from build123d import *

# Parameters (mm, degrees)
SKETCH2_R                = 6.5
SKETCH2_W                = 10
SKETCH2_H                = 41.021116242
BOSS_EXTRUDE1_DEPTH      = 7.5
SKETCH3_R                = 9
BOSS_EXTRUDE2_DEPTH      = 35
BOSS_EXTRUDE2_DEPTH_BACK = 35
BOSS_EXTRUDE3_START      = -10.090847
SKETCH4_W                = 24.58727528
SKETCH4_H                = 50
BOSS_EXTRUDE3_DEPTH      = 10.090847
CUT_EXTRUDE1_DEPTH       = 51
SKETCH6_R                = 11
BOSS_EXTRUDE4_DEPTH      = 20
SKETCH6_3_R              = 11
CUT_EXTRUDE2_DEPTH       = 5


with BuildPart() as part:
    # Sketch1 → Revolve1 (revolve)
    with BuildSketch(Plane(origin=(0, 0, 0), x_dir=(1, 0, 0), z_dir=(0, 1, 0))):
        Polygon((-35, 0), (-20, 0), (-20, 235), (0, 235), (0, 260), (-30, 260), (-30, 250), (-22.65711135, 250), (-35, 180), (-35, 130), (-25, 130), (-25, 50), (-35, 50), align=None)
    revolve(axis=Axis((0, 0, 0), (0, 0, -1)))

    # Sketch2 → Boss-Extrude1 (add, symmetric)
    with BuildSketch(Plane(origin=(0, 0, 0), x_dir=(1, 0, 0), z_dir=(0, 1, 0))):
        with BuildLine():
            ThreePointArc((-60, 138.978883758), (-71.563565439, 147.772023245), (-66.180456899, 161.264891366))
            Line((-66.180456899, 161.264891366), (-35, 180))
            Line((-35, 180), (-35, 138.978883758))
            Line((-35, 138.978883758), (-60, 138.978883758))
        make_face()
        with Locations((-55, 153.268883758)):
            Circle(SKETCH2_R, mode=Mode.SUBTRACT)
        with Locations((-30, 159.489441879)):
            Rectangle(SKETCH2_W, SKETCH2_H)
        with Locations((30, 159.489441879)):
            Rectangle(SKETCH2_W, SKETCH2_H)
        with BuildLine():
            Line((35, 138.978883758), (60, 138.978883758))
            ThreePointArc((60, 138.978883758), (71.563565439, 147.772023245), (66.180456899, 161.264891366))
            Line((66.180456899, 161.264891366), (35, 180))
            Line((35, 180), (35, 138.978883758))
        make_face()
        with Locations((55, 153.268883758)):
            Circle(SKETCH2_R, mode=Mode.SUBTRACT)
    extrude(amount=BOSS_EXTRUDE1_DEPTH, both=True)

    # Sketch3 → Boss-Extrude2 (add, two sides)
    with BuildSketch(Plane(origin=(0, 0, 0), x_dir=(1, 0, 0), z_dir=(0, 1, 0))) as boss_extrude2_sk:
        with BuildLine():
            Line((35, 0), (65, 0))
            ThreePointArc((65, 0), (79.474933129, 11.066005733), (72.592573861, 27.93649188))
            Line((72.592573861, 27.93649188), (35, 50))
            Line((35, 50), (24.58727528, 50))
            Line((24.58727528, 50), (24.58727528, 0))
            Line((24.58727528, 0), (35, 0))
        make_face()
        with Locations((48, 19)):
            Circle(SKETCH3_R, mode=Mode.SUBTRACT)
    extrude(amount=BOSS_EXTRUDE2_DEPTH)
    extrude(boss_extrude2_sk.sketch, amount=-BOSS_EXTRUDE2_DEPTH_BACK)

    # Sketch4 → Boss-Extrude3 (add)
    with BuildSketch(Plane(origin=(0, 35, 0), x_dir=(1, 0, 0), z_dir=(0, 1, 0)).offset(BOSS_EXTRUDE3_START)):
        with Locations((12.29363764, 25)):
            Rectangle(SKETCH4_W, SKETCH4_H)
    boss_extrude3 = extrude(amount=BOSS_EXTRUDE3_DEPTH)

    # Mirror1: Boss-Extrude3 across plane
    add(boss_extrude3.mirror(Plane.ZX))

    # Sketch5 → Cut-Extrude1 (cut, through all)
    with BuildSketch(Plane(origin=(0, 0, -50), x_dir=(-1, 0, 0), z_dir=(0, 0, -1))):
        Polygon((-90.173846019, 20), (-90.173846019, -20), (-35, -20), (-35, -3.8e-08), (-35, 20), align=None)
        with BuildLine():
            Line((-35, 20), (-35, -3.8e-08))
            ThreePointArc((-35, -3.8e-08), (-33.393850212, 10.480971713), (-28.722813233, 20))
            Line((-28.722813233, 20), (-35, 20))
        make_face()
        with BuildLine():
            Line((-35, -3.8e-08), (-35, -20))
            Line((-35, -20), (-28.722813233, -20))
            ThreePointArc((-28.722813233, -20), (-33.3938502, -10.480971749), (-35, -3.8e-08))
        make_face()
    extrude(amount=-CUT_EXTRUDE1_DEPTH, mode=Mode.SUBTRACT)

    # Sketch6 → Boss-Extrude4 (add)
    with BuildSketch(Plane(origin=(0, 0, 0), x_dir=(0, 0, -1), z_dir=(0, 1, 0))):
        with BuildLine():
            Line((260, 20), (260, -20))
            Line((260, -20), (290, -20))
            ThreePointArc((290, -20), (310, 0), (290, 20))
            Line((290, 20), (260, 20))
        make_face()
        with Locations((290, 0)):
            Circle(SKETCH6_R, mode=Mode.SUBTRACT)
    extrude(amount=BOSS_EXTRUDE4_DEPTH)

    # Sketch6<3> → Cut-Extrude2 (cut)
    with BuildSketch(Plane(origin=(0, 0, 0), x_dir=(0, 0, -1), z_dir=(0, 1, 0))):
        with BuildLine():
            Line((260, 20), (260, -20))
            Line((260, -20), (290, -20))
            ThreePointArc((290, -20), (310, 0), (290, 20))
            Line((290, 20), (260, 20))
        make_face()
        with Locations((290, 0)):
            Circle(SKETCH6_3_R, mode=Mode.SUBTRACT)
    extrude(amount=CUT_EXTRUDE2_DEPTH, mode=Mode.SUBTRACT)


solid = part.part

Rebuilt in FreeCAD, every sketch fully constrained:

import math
import FreeCAD as App
import Part
import Sketcher
from FreeCAD import Vector
Q = App.Units.Quantity

doc = App.newDocument("Part")
params = doc.addObject("Spreadsheet::Sheet", "Params")
for row, (alias, value) in enumerate([
    ("sketch1_width", "15 mm"),
    ("sketch1_width2", "20 mm"),
    ("sketch1_width3", "30 mm"),
    ("sketch1_width4", "10 mm"),
    ("sketch1_height", "235 mm"),
    ("revolution_angle", "360 deg"),
    ("sketch2_diameter", "13 mm"),
    ("sketch2_radius", "12 mm"),
    ("sketch2_width", "35 mm"),
    ("sketch2_width2", "10 mm"),
    ("pad1_length", "15 mm"),
    ("sketch3_diameter", "18 mm"),
    ("sketch3_radius", "15 mm"),
    ("sketch3_height", "50 mm"),
    ("pad2_length", "35 mm"),
    ("pad2_length2", "35 mm"),
    ("sketch4_height", "50 mm"),
    ("pad3_length", "10.090847 mm"),
    ("sketch5_radius", "35 mm"),
    ("sketch5_height", "40 mm"),
    ("sketch6_diameter", "22 mm"),
    ("sketch6_radius", "20 mm"),
    ("sketch6_height", "30 mm"),
    ("pad4_length", "20 mm"),
    ("sketch7_diameter", "22 mm"),
    ("sketch7_radius", "20 mm"),
    ("sketch7_height", "30 mm"),
    ("pocket2_length", "5 mm"),
], start=1):
    params.set(f"A{row}", alias)
    params.set(f"B{row}", "=" + value)
    params.setAlias(f"B{row}", alias)

body = doc.addObject("PartDesign::Body", "Body")

# Sketch on XZ plane
sketch1 = body.newObject("Sketcher::SketchObject", "Sketch")
sketch1.AttachmentSupport = (doc.getObject("XZ_Plane"), [""])
sketch1.MapMode = "FlatFace"
sketch1.addGeometry([
    Part.LineSegment(Vector(-35, 0, 0), Vector(-20, 0, 0)),  # 0
    Part.LineSegment(Vector(-20, 0, 0), Vector(-20, -235, 0)),  # 1
    Part.LineSegment(Vector(-20, -235, 0), Vector(0, -235, 0)),  # 2
    Part.LineSegment(Vector(0, -235, 0), Vector(0, -260, 0)),  # 3
    Part.LineSegment(Vector(0, -260, 0), Vector(-30, -260, 0)),  # 4
    Part.LineSegment(Vector(-30, -260, 0), Vector(-30, -250, 0)),  # 5
    Part.LineSegment(Vector(-30, -250, 0), Vector(-23, -250, 0)),  # 6
    Part.LineSegment(Vector(-23, -250, 0), Vector(-35, -180, 0)),  # 7
    Part.LineSegment(Vector(-35, -180, 0), Vector(-35, -130, 0)),  # 8
    Part.LineSegment(Vector(-35, -130, 0), Vector(-25, -130, 0)),  # 9
    Part.LineSegment(Vector(-25, -130, 0), Vector(-25, -50, 0)),  # 10
    Part.LineSegment(Vector(-25, -50, 0), Vector(-35, -50, 0)),  # 11
    Part.LineSegment(Vector(-35, -50, 0), Vector(-35, 0, 0)),  # 12
], False)
sketch1.addConstraint([
    Sketcher.Constraint("Coincident", 0, 2, 1, 1),
    Sketcher.Constraint("Coincident", 1, 2, 2, 1),
    Sketcher.Constraint("Coincident", 2, 2, 3, 1),
    Sketcher.Constraint("Coincident", 3, 2, 4, 1),
    Sketcher.Constraint("Coincident", 4, 2, 5, 1),
    Sketcher.Constraint("Coincident", 5, 2, 6, 1),
    Sketcher.Constraint("Coincident", 6, 2, 7, 1),
    Sketcher.Constraint("Coincident", 7, 2, 8, 1),
    Sketcher.Constraint("Coincident", 8, 2, 9, 1),
    Sketcher.Constraint("Coincident", 9, 2, 10, 1),
    Sketcher.Constraint("Coincident", 10, 2, 11, 1),
    Sketcher.Constraint("Coincident", 11, 2, 12, 1),
    Sketcher.Constraint("Coincident", 12, 2, 0, 1),
    Sketcher.Constraint("Horizontal", 0),
    Sketcher.Constraint("Vertical", 1),
    Sketcher.Constraint("Horizontal", 2),
    Sketcher.Constraint("Vertical", 3),
    Sketcher.Constraint("Horizontal", 4),
    Sketcher.Constraint("Vertical", 5),
    Sketcher.Constraint("Horizontal", 6),
    Sketcher.Constraint("Vertical", 8),
    Sketcher.Constraint("Horizontal", 9),
    Sketcher.Constraint("Vertical", 10),
    Sketcher.Constraint("Horizontal", 11),
    Sketcher.Constraint("Vertical", 12),
    Sketcher.Constraint("PointOnObject", 0, 2, -1),
    Sketcher.Constraint("PointOnObject", 2, 2, -2),
    Sketcher.Constraint("Vertical", 8, 2, 11, 2),
    Sketcher.Constraint("Equal", 11, 5),
    Sketcher.Constraint("Equal", 8, 12),
    Sketcher.Constraint("DistanceX", 0, 1, 0, 2, 15.0),
    Sketcher.Constraint("DistanceX", 2, 1, 2, 2, 20.0),
    Sketcher.Constraint("DistanceX", 4, 2, 4, 1, 30.0),
    Sketcher.Constraint("DistanceX", 9, 1, 9, 2, 10.0),
    Sketcher.Constraint("DistanceY", 1, 2, 1, 1, 235.0),
    Sketcher.Constraint("DistanceY", 3, 2, 3, 1, 25.0),
    Sketcher.Constraint("DistanceY", 8, 1, 8, 2, 50.0),
    Sketcher.Constraint("DistanceY", 10, 1, 10, 2, 80.0),
    Sketcher.Constraint("Angle", 7, Q("100 deg")),
])
sketch1.setExpression("Constraints[30]", "Params.sketch1_width")
sketch1.setExpression("Constraints[31]", "Params.sketch1_width2")
sketch1.setExpression("Constraints[32]", "Params.sketch1_width3")
sketch1.setExpression("Constraints[33]", "Params.sketch1_width4")
sketch1.setExpression("Constraints[34]", "Params.sketch1_height")
revolution = body.newObject("PartDesign::Revolution", "Revolution")
revolution.Profile = sketch1
revolution.ReferenceAxis = (sketch1, ["V_Axis"])
revolution.setExpression("Angle", "Params.revolution_angle")

# Sketch on XZ plane
sketch2 = body.newObject("Sketcher::SketchObject", "Sketch001")
sketch2.AttachmentSupport = (doc.getObject("XZ_Plane"), [""])
sketch2.MapMode = "FlatFace"
sketch2.addGeometry([
    Part.ArcOfCircle(Part.Circle(Vector(-60, -151, 0), Vector(0, 0, 1), 12), math.radians(90), math.radians(239)),  # 0
    Part.LineSegment(Vector(-60, -139, 0), Vector(-25, -139, 0)),  # 1
    Part.LineSegment(Vector(-25, -139, 0), Vector(-25, -180, 0)),  # 2
    Part.LineSegment(Vector(-25, -180, 0), Vector(-35, -180, 0)),  # 3
    Part.LineSegment(Vector(-35, -180, 0), Vector(-66, -161, 0)),  # 4
    Part.Circle(Vector(-55, -153, 0), Vector(0, 0, 1), 6),  # 5
    Part.LineSegment(Vector(25, -180, 0), Vector(25, -139, 0)),  # 6
    Part.LineSegment(Vector(25, -139, 0), Vector(60, -139, 0)),  # 7
    Part.ArcOfCircle(Part.Circle(Vector(60, -151, 0), Vector(0, 0, 1), 12), math.radians(-59), math.radians(90)),  # 8
    Part.LineSegment(Vector(66, -161, 0), Vector(35, -180, 0)),  # 9
    Part.LineSegment(Vector(35, -180, 0), Vector(25, -180, 0)),  # 10
    Part.Circle(Vector(55, -153, 0), Vector(0, 0, 1), 6),  # 11
], False)
sketch2.addConstraint([
    Sketcher.Constraint("Tangent", 0, 1, 1, 1),
    Sketcher.Constraint("Coincident", 1, 2, 2, 1),
    Sketcher.Constraint("Coincident", 2, 2, 3, 1),
    Sketcher.Constraint("Coincident", 3, 2, 4, 1),
    Sketcher.Constraint("Tangent", 4, 2, 0, 2),
    Sketcher.Constraint("Coincident", 6, 2, 7, 1),
    Sketcher.Constraint("Tangent", 7, 2, 8, 2),
    Sketcher.Constraint("Tangent", 8, 1, 9, 1),
    Sketcher.Constraint("Coincident", 9, 2, 10, 1),
    Sketcher.Constraint("Coincident", 10, 2, 6, 1),
    Sketcher.Constraint("Horizontal", 1),
    Sketcher.Constraint("Vertical", 2),
    Sketcher.Constraint("Horizontal", 3),
    Sketcher.Constraint("Vertical", 6),
    Sketcher.Constraint("Horizontal", 7),
    Sketcher.Constraint("Horizontal", 10),
    Sketcher.Constraint("Equal", 0, 8),
    Sketcher.Constraint("Equal", 5, 11),
    Sketcher.Constraint("Symmetric", 0, 3, 8, 3, -2),
    Sketcher.Constraint("Symmetric", 5, 3, 11, 3, -2),
    Sketcher.Constraint("Symmetric", 3, 2, 9, 2, -2),
    Sketcher.Constraint("Equal", 1, 7),
    Sketcher.Constraint("Diameter", 5, 13.0),
    Sketcher.Constraint("Radius", 0, 12.0),
    Sketcher.Constraint("DistanceX", 1, 1, 1, 2, 35.0),
    Sketcher.Constraint("DistanceX", 3, 2, 3, 1, 10.0),
    Sketcher.Constraint("Angle", 4, Q("149 deg")),
    Sketcher.Constraint("DistanceX", 0, 3, -1, 1, 60.0),
    Sketcher.Constraint("DistanceX", 5, 3, -1, 1, 55.0),
    Sketcher.Constraint("DistanceY", 2, 2, -1, 1, 180.0),
    Sketcher.Constraint("DistanceY", 5, 3, 0, 3, 2.29),
])
sketch2.setExpression("Constraints[22]", "Params.sketch2_diameter")
sketch2.setExpression("Constraints[23]", "Params.sketch2_radius")
sketch2.setExpression("Constraints[24]", "Params.sketch2_width")
sketch2.setExpression("Constraints[25]", "Params.sketch2_width2")
pad1 = body.newObject("PartDesign::Pad", "Pad")
pad1.Profile = sketch2
pad1.setExpression("Length", "Params.pad1_length")
pad1.Midplane = True

# Sketch on XZ plane
sketch3 = body.newObject("Sketcher::SketchObject", "Sketch002")
sketch3.AttachmentSupport = (doc.getObject("XZ_Plane"), [""])
sketch3.MapMode = "FlatFace"
sketch3.addGeometry([
    Part.ArcOfCircle(Part.Circle(Vector(65, -15, 0), Vector(0, 0, 1), 15), math.radians(-60), math.radians(90)),  # 0
    Part.LineSegment(Vector(73, -28, 0), Vector(35, -50, 0)),  # 1
    Part.LineSegment(Vector(35, -50, 0), Vector(25, -50, 0)),  # 2
    Part.LineSegment(Vector(25, -50, 0), Vector(25, 0, 0)),  # 3
    Part.LineSegment(Vector(25, 0, 0), Vector(65, 0, 0)),  # 4
    Part.Circle(Vector(48, -19, 0), Vector(0, 0, 1), 9),  # 5
], False)
sketch3.addConstraint([
    Sketcher.Constraint("Tangent", 0, 1, 1, 1),
    Sketcher.Constraint("Coincident", 1, 2, 2, 1),
    Sketcher.Constraint("Coincident", 2, 2, 3, 1),
    Sketcher.Constraint("Coincident", 3, 2, 4, 1),
    Sketcher.Constraint("Tangent", 4, 2, 0, 2),
    Sketcher.Constraint("Horizontal", 2),
    Sketcher.Constraint("Vertical", 3),
    Sketcher.Constraint("Horizontal", 4),
    Sketcher.Constraint("PointOnObject", 3, 2, -1),
    Sketcher.Constraint("Diameter", 5, 18.0),
    Sketcher.Constraint("Radius", 0, 15.0),
    Sketcher.Constraint("DistanceY", 3, 1, 3, 2, 50.0),
    Sketcher.Constraint("DistanceX", -1, 1, 0, 3, 65.0),
    Sketcher.Constraint("DistanceX", -1, 1, 5, 3, 48.0),
    Sketcher.Constraint("DistanceY", 5, 3, -1, 1, 19.0),
    Sketcher.Constraint("DistanceX", -1, 1, 1, 2, 35.0),
    Sketcher.Constraint("DistanceX", 2, 2, 0, 1, 48.005299),
])
sketch3.setExpression("Constraints[9]", "Params.sketch3_diameter")
sketch3.setExpression("Constraints[10]", "Params.sketch3_radius")
sketch3.setExpression("Constraints[11]", "Params.sketch3_height")
pad2 = body.newObject("PartDesign::Pad", "Pad001")
pad2.Profile = sketch3
pad2.Type = "TwoLengths"
pad2.setExpression("Length", "Params.pad2_length")
pad2.setExpression("Length2", "Params.pad2_length2")
pad2.Reversed = True

# Sketch on XZ plane
sketch4 = body.newObject("Sketcher::SketchObject", "Sketch003")
sketch4.AttachmentSupport = (doc.getObject("XZ_Plane"), [""])
sketch4.MapMode = "FlatFace"
sketch4.AttachmentOffset = App.Placement(Vector(0, 0, -24.909153), App.Rotation())
sketch4.addGeometry([
    Part.LineSegment(Vector(0, -50, 0), Vector(0, 0, 0)),
    Part.LineSegment(Vector(0, 0, 0), Vector(25, 0, 0)),
    Part.LineSegment(Vector(25, 0, 0), Vector(25, -50, 0)),
    Part.LineSegment(Vector(25, -50, 0), Vector(0, -50, 0)),
], False)
sketch4.addConstraint([
    Sketcher.Constraint("Coincident", 0, 2, 1, 1),
    Sketcher.Constraint("Coincident", 1, 2, 2, 1),
    Sketcher.Constraint("Coincident", 2, 2, 3, 1),
    Sketcher.Constraint("Coincident", 3, 2, 0, 1),
    Sketcher.Constraint("Vertical", 0),
    Sketcher.Constraint("Horizontal", 1),
    Sketcher.Constraint("Vertical", 2),
    Sketcher.Constraint("Horizontal", 3),
    Sketcher.Constraint("Coincident", 0, 2, -1, 1),
    Sketcher.Constraint("DistanceY", 0, 1, 0, 2, 50.0),
    Sketcher.Constraint("DistanceX", 1, 1, 1, 2, 24.587275),
])
sketch4.setExpression("Constraints[9]", "Params.sketch4_height")
pad3 = body.newObject("PartDesign::Pad", "Pad002")
pad3.Profile = sketch4
pad3.setExpression("Length", "Params.pad3_length")
pad3.Reversed = True
doc.recompute()

mirrored = body.newObject("PartDesign::Mirrored", "Mirrored")
mirrored.Originals = [pad3]
mirrored.MirrorPlane = (doc.getObject("XZ_Plane"), [""])
body.Tip = mirrored

# Sketch on XY plane
sketch5 = body.newObject("Sketcher::SketchObject", "Sketch004")
sketch5.AttachmentSupport = (doc.getObject("XY_Plane"), [""])
sketch5.MapMode = "FlatFace"
sketch5.AttachmentOffset = App.Placement(Vector(0, 0, -50), App.Rotation())
sketch5.addGeometry([
    Part.LineSegment(Vector(90, 20, 0), Vector(90, -20, 0)),  # 0
    Part.LineSegment(Vector(90, -20, 0), Vector(29, -20, 0)),  # 1
    Part.ArcOfCircle(Part.Circle(Vector(0, 0, 0), Vector(0, 0, 1), 35), math.radians(-35), math.radians(0)),  # 2
    Part.ArcOfCircle(Part.Circle(Vector(0, 0, 0), Vector(0, 0, 1), 35), math.radians(0), math.radians(35)),  # 3
    Part.LineSegment(Vector(29, 20, 0), Vector(90, 20, 0)),  # 4
], False)
sketch5.addConstraint([
    Sketcher.Constraint("Coincident", 0, 2, 1, 1),
    Sketcher.Constraint("Coincident", 1, 2, 2, 1),
    Sketcher.Constraint("Tangent", 2, 2, 3, 1),
    Sketcher.Constraint("Coincident", 3, 2, 4, 1),
    Sketcher.Constraint("Coincident", 4, 2, 0, 1),
    Sketcher.Constraint("Vertical", 0),
    Sketcher.Constraint("Horizontal", 1),
    Sketcher.Constraint("Horizontal", 4),
    Sketcher.Constraint("Coincident", 2, 3, -1, 1),
    Sketcher.Constraint("Equal", 2, 3),
    Sketcher.Constraint("PointOnObject", 2, 2, -1),
    Sketcher.Constraint("Vertical", 1, 2, 3, 2),
    Sketcher.Constraint("Radius", 2, 35.0),
    Sketcher.Constraint("DistanceY", 0, 2, 0, 1, 40.0),
    Sketcher.Constraint("DistanceX", 1, 2, 1, 1, 61.451033),
])
sketch5.setExpression("Constraints[12]", "Params.sketch5_radius")
sketch5.setExpression("Constraints[13]", "Params.sketch5_height")
pocket1 = body.newObject("PartDesign::Pocket", "Pocket")
pocket1.Profile = sketch5
pocket1.Type = "ThroughAll"
pocket1.Reversed = True

# Sketch on XZ plane
sketch6 = body.newObject("Sketcher::SketchObject", "Sketch005")
sketch6.AttachmentSupport = (doc.getObject("XZ_Plane"), [""])
sketch6.MapMode = "FlatFace"
sketch6.addGeometry([
    Part.LineSegment(Vector(-20, -260, 0), Vector(20, -260, 0)),  # 0
    Part.LineSegment(Vector(20, -260, 0), Vector(20, -290, 0)),  # 1
    Part.ArcOfCircle(Part.Circle(Vector(0, -290, 0), Vector(0, 0, 1), 20), math.radians(180), math.radians(360)),  # 2
    Part.LineSegment(Vector(-20, -290, 0), Vector(-20, -260, 0)),  # 3
    Part.Circle(Vector(0, -290, 0), Vector(0, 0, 1), 11),  # 4
], False)
sketch6.addConstraint([
    Sketcher.Constraint("Coincident", 0, 2, 1, 1),
    Sketcher.Constraint("Tangent", 1, 2, 2, 2),
    Sketcher.Constraint("Tangent", 2, 1, 3, 1),
    Sketcher.Constraint("Coincident", 3, 2, 0, 1),
    Sketcher.Constraint("Horizontal", 0),
    Sketcher.Constraint("Vertical", 1),
    Sketcher.Constraint("Vertical", 3),
    Sketcher.Constraint("Coincident", 4, 3, 2, 3),
    Sketcher.Constraint("PointOnObject", 2, 3, -2),
    Sketcher.Constraint("Diameter", 4, 22.0),
    Sketcher.Constraint("Radius", 2, 20.0),
    Sketcher.Constraint("DistanceY", 1, 2, 1, 1, 30.0),
    Sketcher.Constraint("DistanceY", 2, 3, -1, 1, 290.0),
])
sketch6.setExpression("Constraints[9]", "Params.sketch6_diameter")
sketch6.setExpression("Constraints[10]", "Params.sketch6_radius")
sketch6.setExpression("Constraints[11]", "Params.sketch6_height")
pad4 = body.newObject("PartDesign::Pad", "Pad003")
pad4.Profile = sketch6
pad4.setExpression("Length", "Params.pad4_length")
pad4.Reversed = True

# Sketch on XZ plane
sketch7 = body.newObject("Sketcher::SketchObject", "Sketch006")
sketch7.AttachmentSupport = (doc.getObject("XZ_Plane"), [""])
sketch7.MapMode = "FlatFace"
sketch7.addGeometry([
    Part.LineSegment(Vector(-20, -260, 0), Vector(20, -260, 0)),  # 0
    Part.LineSegment(Vector(20, -260, 0), Vector(20, -290, 0)),  # 1
    Part.ArcOfCircle(Part.Circle(Vector(0, -290, 0), Vector(0, 0, 1), 20), math.radians(180), math.radians(360)),  # 2
    Part.LineSegment(Vector(-20, -290, 0), Vector(-20, -260, 0)),  # 3
    Part.Circle(Vector(0, -290, 0), Vector(0, 0, 1), 11),  # 4
], False)
sketch7.addConstraint([
    Sketcher.Constraint("Coincident", 0, 2, 1, 1),
    Sketcher.Constraint("Tangent", 1, 2, 2, 2),
    Sketcher.Constraint("Tangent", 2, 1, 3, 1),
    Sketcher.Constraint("Coincident", 3, 2, 0, 1),
    Sketcher.Constraint("Horizontal", 0),
    Sketcher.Constraint("Vertical", 1),
    Sketcher.Constraint("Vertical", 3),
    Sketcher.Constraint("Coincident", 4, 3, 2, 3),
    Sketcher.Constraint("PointOnObject", 2, 3, -2),
    Sketcher.Constraint("Diameter", 4, 22.0),
    Sketcher.Constraint("Radius", 2, 20.0),
    Sketcher.Constraint("DistanceY", 1, 2, 1, 1, 30.0),
    Sketcher.Constraint("DistanceY", 2, 3, -1, 1, 290.0),
])
sketch7.setExpression("Constraints[9]", "Params.sketch7_diameter")
sketch7.setExpression("Constraints[10]", "Params.sketch7_radius")
sketch7.setExpression("Constraints[11]", "Params.sketch7_height")
pocket2 = body.newObject("PartDesign::Pocket", "Pocket001")
pocket2.Profile = sketch7
pocket2.setExpression("Length", "Params.pocket2_length")

doc.recompute()
